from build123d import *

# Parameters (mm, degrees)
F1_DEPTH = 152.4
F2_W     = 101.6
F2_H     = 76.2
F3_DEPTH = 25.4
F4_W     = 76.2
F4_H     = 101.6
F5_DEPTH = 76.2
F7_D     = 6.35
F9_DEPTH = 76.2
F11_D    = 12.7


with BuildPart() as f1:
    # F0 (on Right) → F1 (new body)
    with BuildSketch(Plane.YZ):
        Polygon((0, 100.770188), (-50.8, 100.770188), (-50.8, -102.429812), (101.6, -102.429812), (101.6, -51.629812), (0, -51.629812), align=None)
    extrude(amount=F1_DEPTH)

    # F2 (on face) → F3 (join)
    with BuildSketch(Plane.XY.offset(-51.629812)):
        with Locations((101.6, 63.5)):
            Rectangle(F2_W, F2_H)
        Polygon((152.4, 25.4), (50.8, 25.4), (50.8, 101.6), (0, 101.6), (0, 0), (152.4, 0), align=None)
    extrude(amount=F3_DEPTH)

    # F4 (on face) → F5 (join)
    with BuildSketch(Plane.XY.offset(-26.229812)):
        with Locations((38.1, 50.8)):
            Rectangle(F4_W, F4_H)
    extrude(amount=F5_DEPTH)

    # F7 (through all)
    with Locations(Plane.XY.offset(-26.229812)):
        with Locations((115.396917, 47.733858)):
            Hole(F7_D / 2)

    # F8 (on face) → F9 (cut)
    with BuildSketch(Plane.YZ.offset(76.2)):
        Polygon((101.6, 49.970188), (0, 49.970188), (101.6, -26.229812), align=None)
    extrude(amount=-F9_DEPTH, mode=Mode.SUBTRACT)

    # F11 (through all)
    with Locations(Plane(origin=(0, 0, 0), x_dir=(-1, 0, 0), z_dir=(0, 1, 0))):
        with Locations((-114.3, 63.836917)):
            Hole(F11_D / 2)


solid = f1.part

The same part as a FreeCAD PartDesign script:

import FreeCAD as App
import Part
import Sketcher

V = App.Vector
Q = App.Units.Quantity

doc = App.newDocument("Part")
params = doc.addObject("Spreadsheet::Sheet", "Params")
for row, (alias, value) in enumerate([
    ("sketch1_width", "2 in"),
    ("sketch1_width2", "6 in"),
    ("pad1_length", "6 in"),
    ("sketch2_width", "6 in"),
    ("sketch2_height", "4 in"),
    ("pad2_length", "1 in"),
    ("sketch3_width", "3 in"),
    ("sketch3_height", "4 in"),
    ("pad3_length", "3 in"),
    ("sketch4_diameter", "0.25 in"),
    ("hole_diameter", "0.25 in"),
    ("sketch5_width", "4 in"),
    ("sketch5_height", "3 in"),
    ("pocket1_length", "3 in"),
    ("sketch6_diameter", "0.5 in"),
    ("hole2_diameter", "0.5 in"),
], start=1):
    params.set(f"A{row}", alias)
    params.set(f"B{row}", "=" + value)
    params.setAlias(f"B{row}", alias)

body = doc.addObject("PartDesign::Body", "Body")

sketch1 = doc.addObject("Sketcher::SketchObject", "Sketch")
body.addObject(sketch1)
sketch1.AttachmentSupport = (doc.YZ_Plane, [""])
sketch1.MapMode = "FlatFace"
sketch1.addGeometry([
    Part.LineSegment(V(0, 100.770188, 0), V(-50.8, 100.770188, 0)),
    Part.LineSegment(V(-50.8, 100.770188, 0), V(-50.8, -102.429812, 0)),
    Part.LineSegment(V(-50.8, -102.429812, 0), V(101.6, -102.429812, 0)),
    Part.LineSegment(V(101.6, -102.429812, 0), V(101.6, -51.629812, 0)),
    Part.LineSegment(V(101.6, -51.629812, 0), V(0, -51.629812, 0)),
    Part.LineSegment(V(0, -51.629812, 0), V(0, 100.770188, 0)),
], False)
sketch1.addConstraint([
    Sketcher.Constraint("Coincident", 0, 2, 1, 1),
    Sketcher.Constraint("Coincident", 1, 2, 2, 1),
    Sketcher.Constraint("Coincident", 2, 2, 3, 1),
    Sketcher.Constraint("Coincident", 3, 2, 4, 1),
    Sketcher.Constraint("Coincident", 4, 2, 5, 1),
    Sketcher.Constraint("Coincident", 5, 2, 0, 1),
    Sketcher.Constraint("Horizontal", 0),
    Sketcher.Constraint("Vertical", 1),
    Sketcher.Constraint("Horizontal", 2),
    Sketcher.Constraint("Vertical", 3),
    Sketcher.Constraint("Horizontal", 4),
    Sketcher.Constraint("Vertical", 5),
    Sketcher.Constraint("PointOnObject", 4, 2, -2),
    Sketcher.Constraint("Equal", 0, 3),
    Sketcher.Constraint("Equal", 2, 5),
    Sketcher.Constraint("DistanceX", 0, 2, 0, 1, Q("2 in")),
    Sketcher.Constraint("DistanceX", 2, 1, 2, 2, Q("6 in")),
    Sketcher.Constraint("DistanceY", -1, 1, 0, 2, Q("100.770188 mm")),
])
sketch1.setExpression("Constraints[15]", "Params.sketch1_width")
sketch1.setExpression("Constraints[16]", "Params.sketch1_width2")
pad1 = doc.addObject("PartDesign::Pad", "Pad")
body.addObject(pad1)
pad1.Profile = sketch1
pad1.setExpression("Length", "Params.pad1_length")

sketch2 = doc.addObject("Sketcher::SketchObject", "Sketch001")
body.addObject(sketch2)
sketch2.AttachmentSupport = (doc.XY_Plane, [""])
sketch2.MapMode = "FlatFace"
sketch2.AttachmentOffset = App.Placement(V(0, 0, -51.629812), App.Rotation())
sketch2.addGeometry([
    Part.LineSegment(V(152.4, 101.6, 0), V(0, 101.6, 0)),
    Part.LineSegment(V(0, 101.6, 0), V(0, 0, 0)),
    Part.LineSegment(V(0, 0, 0), V(152.4, 0, 0)),
    Part.LineSegment(V(152.4, 0, 0), V(152.4, 101.6, 0)),
], False)
sketch2.addConstraint([
    Sketcher.Constraint("Coincident", 0, 2, 1, 1),
    Sketcher.Constraint("Coincident", 1, 2, 2, 1),
    Sketcher.Constraint("Coincident", 2, 2, 3, 1),
    Sketcher.Constraint("Coincident", 3, 2, 0, 1),
    Sketcher.Constraint("Horizontal", 0),
    Sketcher.Constraint("Vertical", 1),
    Sketcher.Constraint("Horizontal", 2),
    Sketcher.Constraint("Vertical", 3),
    Sketcher.Constraint("Coincident", 1, 2, -1, 1),
    Sketcher.Constraint("DistanceX", 0, 2, 0, 1, Q("6 in")),
    Sketcher.Constraint("DistanceY", 1, 2, 1, 1, Q("4 in")),
])
sketch2.setExpression("Constraints[9]", "Params.sketch2_width")
sketch2.setExpression("Constraints[10]", "Params.sketch2_height")
pad2 = doc.addObject("PartDesign::Pad", "Pad001")
body.addObject(pad2)
pad2.Profile = sketch2
pad2.setExpression("Length", "Params.pad2_length")

sketch3 = doc.addObject("Sketcher::SketchObject", "Sketch002")
body.addObject(sketch3)
sketch3.AttachmentSupport = (doc.XY_Plane, [""])
sketch3.MapMode = "FlatFace"
sketch3.AttachmentOffset = App.Placement(V(0, 0, -26.229812), App.Rotation())
sketch3.addGeometry([
    Part.LineSegment(V(0, 101.6, 0), V(0, 0, 0)),
    Part.LineSegment(V(0, 0, 0), V(76.2, 0, 0)),
    Part.LineSegment(V(76.2, 0, 0), V(76.2, 101.6, 0)),
    Part.LineSegment(V(76.2, 101.6, 0), V(0, 101.6, 0)),
], False)
sketch3.addConstraint([
    Sketcher.Constraint("Coincident", 0, 2, 1, 1),
    Sketcher.Constraint("Coincident", 1, 2, 2, 1),
    Sketcher.Constraint("Coincident", 2, 2, 3, 1),
    Sketcher.Constraint("Coincident", 3, 2, 0, 1),
    Sketcher.Constraint("Vertical", 0),
    Sketcher.Constraint("Horizontal", 1),
    Sketcher.Constraint("Vertical", 2),
    Sketcher.Constraint("Horizontal", 3),
    Sketcher.Constraint("Coincident", 0, 2, -1, 1),
    Sketcher.Constraint("DistanceX", 1, 1, 1, 2, Q("3 in")),
    Sketcher.Constraint("DistanceY", 0, 2, 0, 1, Q("4 in")),
])
sketch3.setExpression("Constraints[9]", "Params.sketch3_width")
sketch3.setExpression("Constraints[10]", "Params.sketch3_height")
pad3 = doc.addObject("PartDesign::Pad", "Pad002")
body.addObject(pad3)
pad3.Profile = sketch3
pad3.setExpression("Length", "Params.pad3_length")

sketch4 = doc.addObject("Sketcher::SketchObject", "Sketch003")
body.addObject(sketch4)
sketch4.AttachmentSupport = (doc.XY_Plane, [""])
sketch4.MapMode = "FlatFace"
sketch4.AttachmentOffset = App.Placement(V(0, 0, -26.229812), App.Rotation())
sketch4.addGeometry(Part.Circle(V(115.396917, 47.733858, 0), V(0, 0, 1), 3.175), False)
sketch4.addConstraint([
    Sketcher.Constraint("Diameter", 0, Q("0.25 in")),
    Sketcher.Constraint("DistanceX", -1, 1, 0, 3, Q("115.396917 mm")),
    Sketcher.Constraint("DistanceY", -1, 1, 0, 3, Q("47.733858 mm")),
])
sketch4.setExpression("Constraints[0]", "Params.sketch4_diameter")
doc.recompute()
hole = doc.addObject("PartDesign::Hole", "Hole")
body.addObject(hole)
hole.Profile = sketch4
hole.ThreadType = "None"
hole.setExpression("Diameter", "Params.hole_diameter")
hole.DepthType = "ThroughAll"

sketch5 = doc.addObject("Sketcher::SketchObject", "Sketch004")
body.addObject(sketch5)
sketch5.AttachmentSupport = (doc.YZ_Plane, [""])
sketch5.MapMode = "FlatFace"
sketch5.AttachmentOffset = App.Placement(V(0, 0, 3 * 25.4), App.Rotation())
sketch5.addGeometry([
    Part.LineSegment(V(101.6, 49.970188, 0), V(0, 49.970188, 0)),
    Part.LineSegment(V(0, 49.970188, 0), V(101.6, -26.229812, 0)),
    Part.LineSegment(V(101.6, -26.229812, 0), V(101.6, 49.970188, 0)),
], False)
sketch5.addConstraint([
    Sketcher.Constraint("Coincident", 0, 2, 1, 1),
    Sketcher.Constraint("Coincident", 1, 2, 2, 1),
    Sketcher.Constraint("Coincident", 2, 2, 0, 1),
    Sketcher.Constraint("Horizontal", 0),
    Sketcher.Constraint("Vertical", 2),
    Sketcher.Constraint("PointOnObject", 0, 2, -2),
    Sketcher.Constraint("DistanceX", 0, 2, 0, 1, Q("4 in")),
    Sketcher.Constraint("DistanceY", 2, 1, 2, 2, Q("3 in")),
    Sketcher.Constraint("DistanceY", 1, 2, -1, 1, Q("26.229812 mm")),
])
sketch5.setExpression("Constraints[6]", "Params.sketch5_width")
sketch5.setExpression("Constraints[7]", "Params.sketch5_height")
pocket1 = doc.addObject("PartDesign::Pocket", "Pocket")
body.addObject(pocket1)
pocket1.Profile = sketch5
pocket1.setExpression("Length", "Params.pocket1_length")

sketch6 = doc.addObject("Sketcher::SketchObject", "Sketch005")
body.addObject(sketch6)
sketch6.AttachmentSupport = (doc.XZ_Plane, [""])
sketch6.MapMode = "FlatFace"
sketch6.addGeometry(Part.Circle(V(114.3, 63.836917, 0), V(0, 0, 1), 6.35), False)
sketch6.addConstraint([
    Sketcher.Constraint("Diameter", 0, Q("0.5 in")),
    Sketcher.Constraint("DistanceX", -1, 1, 0, 3, Q("4.5 in")),
    Sketcher.Constraint("DistanceY", -1, 1, 0, 3, Q("63.836917 mm")),
])
sketch6.setExpression("Constraints[0]", "Params.sketch6_diameter")
doc.recompute()
hole2 = doc.addObject("PartDesign::Hole", "Hole001")
body.addObject(hole2)
hole2.Profile = sketch6
hole2.ThreadType = "None"
hole2.setExpression("Diameter", "Params.hole2_diameter")
hole2.DepthType = "ThroughAll"
hole2.Reversed = True

doc.recompute()
